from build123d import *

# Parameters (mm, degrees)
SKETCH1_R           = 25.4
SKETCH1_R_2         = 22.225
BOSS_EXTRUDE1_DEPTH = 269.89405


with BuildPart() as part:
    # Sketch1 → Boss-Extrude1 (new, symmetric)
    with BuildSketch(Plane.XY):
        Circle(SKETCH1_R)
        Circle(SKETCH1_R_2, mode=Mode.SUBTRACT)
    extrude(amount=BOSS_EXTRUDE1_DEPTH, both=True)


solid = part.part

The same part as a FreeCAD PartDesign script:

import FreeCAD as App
import Part
import Sketcher
from FreeCAD import Vector
Q = App.Units.Quantity

doc = App.newDocument("Part")
body = doc.addObject("PartDesign::Body", "Body")

sketch1 = body.newObject("Sketcher::SketchObject", "Sketch")
sketch1.AttachmentSupport = (doc.getObject("XY_Plane"), [""])
sketch1.MapMode = "FlatFace"
sketch1.addGeometry(Part.Circle(Vector(0, 0, 0), Vector(0, 0, 1), 25), False)
sketch1.addGeometry(Part.Circle(Vector(0, 0, 0), Vector(0, 0, 1), 22), False)
sketch1.addConstraint(Sketcher.Constraint("Coincident", 0, 3, -1, 1))
sketch1.addConstraint(Sketcher.Constraint("Coincident", 1, 3, -1, 1))
sketch1.addConstraint(Sketcher.Constraint("Diameter", 0, Q("2 in")))
sketch1.addConstraint(Sketcher.Constraint("Diameter", 1, Q("1.75 in")))
pad1 = body.newObject("PartDesign::Pad", "Pad")
pad1.Profile = sketch1
pad1.Length = Q("21.2515 in")
pad1.Midplane = True

doc.recompute()
